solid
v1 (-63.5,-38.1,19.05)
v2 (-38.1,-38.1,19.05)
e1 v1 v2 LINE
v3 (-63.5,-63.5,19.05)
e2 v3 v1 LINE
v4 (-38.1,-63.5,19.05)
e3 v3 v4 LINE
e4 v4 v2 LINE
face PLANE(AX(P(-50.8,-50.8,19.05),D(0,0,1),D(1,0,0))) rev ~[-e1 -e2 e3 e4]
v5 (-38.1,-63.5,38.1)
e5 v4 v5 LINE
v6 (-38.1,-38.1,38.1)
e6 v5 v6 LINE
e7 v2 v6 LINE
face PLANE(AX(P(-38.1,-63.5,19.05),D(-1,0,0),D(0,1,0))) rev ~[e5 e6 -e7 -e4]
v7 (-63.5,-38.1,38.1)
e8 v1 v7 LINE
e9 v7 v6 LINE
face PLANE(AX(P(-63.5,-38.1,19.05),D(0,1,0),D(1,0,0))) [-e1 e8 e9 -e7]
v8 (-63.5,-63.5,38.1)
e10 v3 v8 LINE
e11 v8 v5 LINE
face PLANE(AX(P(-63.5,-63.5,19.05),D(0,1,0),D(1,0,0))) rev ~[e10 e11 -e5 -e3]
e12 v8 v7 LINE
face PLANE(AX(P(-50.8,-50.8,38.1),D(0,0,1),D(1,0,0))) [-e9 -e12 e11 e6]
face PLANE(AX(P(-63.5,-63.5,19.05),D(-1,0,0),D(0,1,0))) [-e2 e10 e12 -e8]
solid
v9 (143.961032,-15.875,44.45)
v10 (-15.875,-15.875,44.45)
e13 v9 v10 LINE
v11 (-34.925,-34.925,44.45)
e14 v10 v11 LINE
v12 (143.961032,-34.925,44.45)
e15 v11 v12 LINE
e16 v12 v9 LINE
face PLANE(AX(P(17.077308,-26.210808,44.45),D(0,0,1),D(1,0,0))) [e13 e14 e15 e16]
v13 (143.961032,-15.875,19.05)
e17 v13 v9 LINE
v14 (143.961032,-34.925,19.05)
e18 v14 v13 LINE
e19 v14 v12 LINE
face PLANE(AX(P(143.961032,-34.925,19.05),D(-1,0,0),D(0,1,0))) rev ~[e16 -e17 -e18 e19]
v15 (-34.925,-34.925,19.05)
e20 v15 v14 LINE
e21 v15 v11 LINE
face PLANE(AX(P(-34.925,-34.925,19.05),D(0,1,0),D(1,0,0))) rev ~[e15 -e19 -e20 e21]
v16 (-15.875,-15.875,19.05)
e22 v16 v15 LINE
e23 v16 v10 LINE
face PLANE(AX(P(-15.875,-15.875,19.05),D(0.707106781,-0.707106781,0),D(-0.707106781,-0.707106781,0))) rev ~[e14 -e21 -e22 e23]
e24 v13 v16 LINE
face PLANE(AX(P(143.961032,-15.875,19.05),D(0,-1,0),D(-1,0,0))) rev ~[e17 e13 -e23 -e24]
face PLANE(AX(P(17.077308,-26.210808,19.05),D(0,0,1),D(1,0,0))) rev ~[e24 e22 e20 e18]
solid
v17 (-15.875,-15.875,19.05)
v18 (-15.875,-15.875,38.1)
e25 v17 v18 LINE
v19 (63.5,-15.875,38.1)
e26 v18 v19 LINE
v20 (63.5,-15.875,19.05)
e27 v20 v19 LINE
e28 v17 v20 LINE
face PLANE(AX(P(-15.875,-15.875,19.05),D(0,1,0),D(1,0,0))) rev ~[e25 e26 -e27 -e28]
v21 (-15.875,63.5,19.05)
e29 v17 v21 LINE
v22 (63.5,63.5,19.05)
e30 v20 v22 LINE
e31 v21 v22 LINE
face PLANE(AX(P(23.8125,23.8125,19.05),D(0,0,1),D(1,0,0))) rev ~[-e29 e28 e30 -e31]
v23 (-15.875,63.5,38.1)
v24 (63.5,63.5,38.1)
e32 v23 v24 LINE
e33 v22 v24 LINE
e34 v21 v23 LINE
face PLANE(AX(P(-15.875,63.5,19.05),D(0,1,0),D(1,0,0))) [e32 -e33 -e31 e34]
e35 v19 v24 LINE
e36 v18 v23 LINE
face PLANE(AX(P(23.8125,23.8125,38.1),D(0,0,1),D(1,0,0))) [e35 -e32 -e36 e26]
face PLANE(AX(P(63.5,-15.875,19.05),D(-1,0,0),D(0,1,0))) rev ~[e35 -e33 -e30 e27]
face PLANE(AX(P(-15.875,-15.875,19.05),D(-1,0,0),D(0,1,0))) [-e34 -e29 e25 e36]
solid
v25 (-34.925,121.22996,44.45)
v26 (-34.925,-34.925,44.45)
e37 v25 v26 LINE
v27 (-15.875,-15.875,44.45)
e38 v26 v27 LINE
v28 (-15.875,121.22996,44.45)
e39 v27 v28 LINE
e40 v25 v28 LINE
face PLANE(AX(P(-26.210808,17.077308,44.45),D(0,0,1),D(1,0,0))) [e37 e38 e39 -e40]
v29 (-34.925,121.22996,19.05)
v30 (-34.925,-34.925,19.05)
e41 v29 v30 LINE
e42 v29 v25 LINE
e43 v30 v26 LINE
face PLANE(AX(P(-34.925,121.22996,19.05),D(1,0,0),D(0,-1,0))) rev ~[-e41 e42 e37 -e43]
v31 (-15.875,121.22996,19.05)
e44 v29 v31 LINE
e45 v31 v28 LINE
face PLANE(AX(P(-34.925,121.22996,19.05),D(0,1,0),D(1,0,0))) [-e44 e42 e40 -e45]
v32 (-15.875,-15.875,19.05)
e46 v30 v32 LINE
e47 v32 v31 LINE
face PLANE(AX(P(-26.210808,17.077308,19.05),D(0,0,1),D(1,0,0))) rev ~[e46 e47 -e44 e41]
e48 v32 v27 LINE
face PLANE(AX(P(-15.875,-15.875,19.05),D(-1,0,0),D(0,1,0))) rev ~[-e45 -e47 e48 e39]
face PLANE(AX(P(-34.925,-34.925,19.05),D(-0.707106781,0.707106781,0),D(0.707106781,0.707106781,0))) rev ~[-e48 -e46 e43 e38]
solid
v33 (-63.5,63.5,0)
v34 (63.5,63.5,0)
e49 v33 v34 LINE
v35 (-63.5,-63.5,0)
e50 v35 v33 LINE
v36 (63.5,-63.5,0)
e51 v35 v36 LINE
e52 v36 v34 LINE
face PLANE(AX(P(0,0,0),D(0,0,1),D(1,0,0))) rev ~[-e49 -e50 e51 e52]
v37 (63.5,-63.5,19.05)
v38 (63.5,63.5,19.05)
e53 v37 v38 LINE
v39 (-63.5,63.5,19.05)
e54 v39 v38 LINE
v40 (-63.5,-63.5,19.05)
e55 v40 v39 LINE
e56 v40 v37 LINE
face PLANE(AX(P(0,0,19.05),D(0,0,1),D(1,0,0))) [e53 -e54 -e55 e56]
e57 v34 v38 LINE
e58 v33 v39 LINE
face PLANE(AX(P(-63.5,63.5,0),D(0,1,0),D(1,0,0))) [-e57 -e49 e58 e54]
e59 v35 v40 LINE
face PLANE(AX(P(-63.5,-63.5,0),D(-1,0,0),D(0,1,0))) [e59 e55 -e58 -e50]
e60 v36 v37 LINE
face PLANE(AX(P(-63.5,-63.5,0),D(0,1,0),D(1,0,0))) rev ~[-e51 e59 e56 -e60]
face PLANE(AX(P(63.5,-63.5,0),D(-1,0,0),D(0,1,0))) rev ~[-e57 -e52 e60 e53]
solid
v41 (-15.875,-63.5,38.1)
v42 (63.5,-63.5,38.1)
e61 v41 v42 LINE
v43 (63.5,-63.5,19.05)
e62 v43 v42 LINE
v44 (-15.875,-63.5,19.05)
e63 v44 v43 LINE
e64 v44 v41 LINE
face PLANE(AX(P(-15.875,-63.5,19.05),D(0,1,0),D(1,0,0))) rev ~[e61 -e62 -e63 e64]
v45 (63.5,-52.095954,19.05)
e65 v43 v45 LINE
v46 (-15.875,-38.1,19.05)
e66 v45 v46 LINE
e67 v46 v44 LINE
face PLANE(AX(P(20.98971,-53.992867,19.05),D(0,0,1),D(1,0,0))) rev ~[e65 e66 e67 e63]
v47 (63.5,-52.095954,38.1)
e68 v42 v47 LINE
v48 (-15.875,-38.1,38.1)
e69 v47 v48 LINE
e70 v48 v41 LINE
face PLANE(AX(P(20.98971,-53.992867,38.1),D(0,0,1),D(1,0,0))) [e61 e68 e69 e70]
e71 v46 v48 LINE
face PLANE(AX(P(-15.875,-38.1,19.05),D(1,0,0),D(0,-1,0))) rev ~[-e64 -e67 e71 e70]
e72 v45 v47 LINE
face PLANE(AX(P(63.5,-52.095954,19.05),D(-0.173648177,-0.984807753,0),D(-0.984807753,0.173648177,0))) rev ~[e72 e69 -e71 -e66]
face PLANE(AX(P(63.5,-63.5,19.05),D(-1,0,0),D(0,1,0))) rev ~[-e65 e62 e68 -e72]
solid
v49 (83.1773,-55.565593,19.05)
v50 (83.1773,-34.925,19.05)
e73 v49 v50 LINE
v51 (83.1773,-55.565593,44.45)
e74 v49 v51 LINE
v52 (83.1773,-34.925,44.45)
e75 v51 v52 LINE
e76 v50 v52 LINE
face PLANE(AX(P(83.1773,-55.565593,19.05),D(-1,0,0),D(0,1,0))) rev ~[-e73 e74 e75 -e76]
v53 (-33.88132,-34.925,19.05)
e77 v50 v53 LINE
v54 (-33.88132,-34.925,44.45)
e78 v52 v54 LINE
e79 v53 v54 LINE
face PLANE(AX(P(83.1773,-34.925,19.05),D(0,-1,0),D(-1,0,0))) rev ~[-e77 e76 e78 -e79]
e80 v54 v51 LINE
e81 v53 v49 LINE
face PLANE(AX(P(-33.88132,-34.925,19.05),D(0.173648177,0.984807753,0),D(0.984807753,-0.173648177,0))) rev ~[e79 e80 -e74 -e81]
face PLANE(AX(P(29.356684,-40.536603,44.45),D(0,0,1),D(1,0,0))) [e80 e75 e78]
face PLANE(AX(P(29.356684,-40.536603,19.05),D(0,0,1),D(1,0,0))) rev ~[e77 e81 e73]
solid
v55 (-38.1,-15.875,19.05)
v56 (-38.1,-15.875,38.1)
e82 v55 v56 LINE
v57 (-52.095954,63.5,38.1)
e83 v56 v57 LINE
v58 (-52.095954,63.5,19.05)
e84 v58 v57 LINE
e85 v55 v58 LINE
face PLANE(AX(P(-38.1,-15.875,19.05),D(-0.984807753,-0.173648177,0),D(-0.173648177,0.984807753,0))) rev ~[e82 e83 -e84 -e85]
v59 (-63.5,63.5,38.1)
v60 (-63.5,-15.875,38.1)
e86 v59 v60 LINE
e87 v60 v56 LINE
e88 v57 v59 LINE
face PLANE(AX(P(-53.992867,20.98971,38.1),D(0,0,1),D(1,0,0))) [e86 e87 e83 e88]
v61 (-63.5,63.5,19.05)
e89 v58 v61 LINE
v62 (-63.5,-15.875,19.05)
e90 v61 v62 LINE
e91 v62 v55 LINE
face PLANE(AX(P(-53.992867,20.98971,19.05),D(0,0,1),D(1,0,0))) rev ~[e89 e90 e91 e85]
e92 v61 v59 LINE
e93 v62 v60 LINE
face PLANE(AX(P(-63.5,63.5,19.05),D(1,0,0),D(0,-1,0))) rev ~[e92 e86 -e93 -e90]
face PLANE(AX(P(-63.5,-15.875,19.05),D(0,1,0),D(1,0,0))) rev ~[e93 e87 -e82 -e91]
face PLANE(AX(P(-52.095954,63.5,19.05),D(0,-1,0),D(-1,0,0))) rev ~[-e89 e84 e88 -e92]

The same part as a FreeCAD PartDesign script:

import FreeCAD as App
import Part
import Sketcher
Q = App.Units.Quantity


def add_polygon(sketch, points):
    """Adds a closed chain of lines whose ends are joined by coincident constraints."""
    first, n = sketch.GeometryCount, len(points)
    for a, b in zip(points, points[1:] + points[:1]):
        sketch.addGeometry(Part.LineSegment(App.Vector(*a, 0), App.Vector(*b, 0)), False)
    for i in range(n):
        sketch.addConstraint(Sketcher.Constraint("Coincident", first + i, 2, first + (i + 1) % n, 1))

doc = App.newDocument("Part")
body = doc.addObject("PartDesign::Body", "Body")

# Sketch on XY plane
sketch1 = body.newObject("Sketcher::SketchObject", "Sketch")
sketch1.AttachmentSupport = (doc.getObject("XY_Plane"), [""])
sketch1.MapMode = "FlatFace"
add_polygon(sketch1, [(-64, 64), (-64, -64), (64, -64), (64, 64)])  # lines 0-3
sketch1.addConstraint(Sketcher.Constraint("Vertical", 0))
sketch1.addConstraint(Sketcher.Constraint("Horizontal", 1))
sketch1.addConstraint(Sketcher.Constraint("Vertical", 2))
sketch1.addConstraint(Sketcher.Constraint("Horizontal", 3))
sketch1.addConstraint(Sketcher.Constraint("Symmetric", 0, 2, 2, 2, -1, 1))
sketch1.addConstraint(Sketcher.Constraint("Equal", 3, 0))
sketch1.addConstraint(Sketcher.Constraint("DistanceX", 1, 1, 1, 2, Q("5 in")))
pad1 = body.newObject("PartDesign::Pad", "Pad")
pad1.Profile = sketch1
pad1.Length = Q("0.75 in")
body2 = doc.addObject("PartDesign::Body", "Body001")
body2.AllowCompound = True

# Sketch on XY plane
sketch2 = body2.newObject("Sketcher::SketchObject", "Sketch001")
sketch2.AttachmentSupport = (doc.getObject("XY_Plane001"), [""])
sketch2.MapMode = "FlatFace"
sketch2.AttachmentOffset = App.Placement(App.Vector(0, 0, 0.75 * 25.4), App.Rotation())
add_polygon(sketch2, [(-64, 64), (-64, -16), (-38, -16), (-52, 64)])  # lines 0-3
add_polygon(sketch2, [(-64, -38), (-64, -64), (-38, -64), (-38, -38)])  # lines 4-7
add_polygon(sketch2, [(-16, -38), (-16, -64), (64, -64), (64, -52)])  # lines 8-11
add_polygon(sketch2, [(-16, 64), (-16, -16), (64, -16), (64, 64)])  # lines 12-15
sketch2.addConstraint(Sketcher.Constraint("Vertical", 0))
sketch2.addConstraint(Sketcher.Constraint("Horizontal", 1))
sketch2.addConstraint(Sketcher.Constraint("Horizontal", 3))
sketch2.addConstraint(Sketcher.Constraint("Vertical", 4))
sketch2.addConstraint(Sketcher.Constraint("Horizontal", 5))
sketch2.addConstraint(Sketcher.Constraint("Vertical", 6))
sketch2.addConstraint(Sketcher.Constraint("Horizontal", 7))
sketch2.addConstraint(Sketcher.Constraint("Vertical", 8))
sketch2.addConstraint(Sketcher.Constraint("Horizontal", 9))
sketch2.addConstraint(Sketcher.Constraint("Vertical", 10))
sketch2.addConstraint(Sketcher.Constraint("Vertical", 12))
sketch2.addConstraint(Sketcher.Constraint("Horizontal", 13))
sketch2.addConstraint(Sketcher.Constraint("Vertical", 14))
sketch2.addConstraint(Sketcher.Constraint("Horizontal", 15))
sketch2.addConstraint(Sketcher.Constraint("Symmetric", 3, 2, 9, 2, -1, 1))
sketch2.addConstraint(Sketcher.Constraint("Symmetric", 4, 2, 14, 2, -1, 1))
sketch2.addConstraint(Sketcher.Constraint("Symmetric", 4, 2, 9, 2, -2))
sketch2.addConstraint(Sketcher.Constraint("Horizontal", 7, 2, 11, 2))
sketch2.addConstraint(Sketcher.Constraint("Horizontal", 1, 2, 12, 2))
sketch2.addConstraint(Sketcher.Constraint("Vertical", 1, 2, 5, 2))
sketch2.addConstraint(Sketcher.Constraint("Vertical", 11, 2, 12, 2))
sketch2.addConstraint(Sketcher.Constraint("Equal", 15, 0))
sketch2.addConstraint(Sketcher.Constraint("Equal", 7, 4))
sketch2.addConstraint(Sketcher.Constraint("Equal", 3, 10))
sketch2.addConstraint(Sketcher.Constraint("DistanceX", 1, 1, 1, 2, Q("1 in")))
sketch2.addConstraint(Sketcher.Constraint("Angle", 2, Q("100 deg")))
sketch2.addConstraint(Sketcher.Constraint("DistanceY", 4, 2, 3, 2, Q("5 in")))
sketch2.addConstraint(Sketcher.Constraint("DistanceX", 5, 2, 9, 2, Q("4 in")))
sketch2.addConstraint(Sketcher.Constraint("DistanceX", 9, 1, 9, 2, Q("3.125 in")))
pad2 = body2.newObject("PartDesign::Pad", "Pad001")
pad2.Profile = sketch2
pad2.Length = Q("0.75 in")
body3 = doc.addObject("PartDesign::Body", "Body002")

# Sketch on XY plane
sketch3 = body3.newObject("Sketcher::SketchObject", "Sketch002")
sketch3.AttachmentSupport = (doc.getObject("XY_Plane002"), [""])
sketch3.MapMode = "FlatFace"
sketch3.AttachmentOffset = App.Placement(App.Vector(0, 0, 0.75 * 25.4), App.Rotation())
add_polygon(sketch3, [(83, -56), (83, -35), (-34, -35)])  # lines 0-2
sketch3.addConstraint(Sketcher.Constraint("Vertical", 0))
sketch3.addConstraint(Sketcher.Constraint("Horizontal", 1))
sketch3.addConstraint(Sketcher.Constraint("Angle", 2, Q("-10 deg")))
sketch3.addConstraint(Sketcher.Constraint("DistanceY", 0, 2, -1, 1, Q("1.375 in")))
sketch3.addConstraint(Sketcher.Constraint("DistanceX", 1, 2, 1, 1, Q("117.05862 mm")))
sketch3.addConstraint(Sketcher.Constraint("DistanceX", -1, 1, 0, 2, Q("83.1773 mm")))
pad3 = body3.newObject("PartDesign::Pad", "Pad002")
pad3.Profile = sketch3
pad3.Length = Q("1 in")
body4 = doc.addObject("PartDesign::Body", "Body003")

# Sketch on XY plane
sketch4 = body4.newObject("Sketcher::SketchObject", "Sketch003")
sketch4.AttachmentSupport = (doc.getObject("XY_Plane003"), [""])
sketch4.MapMode = "FlatFace"
sketch4.AttachmentOffset = App.Placement(App.Vector(0, 0, 0.75 * 25.4), App.Rotation())
add_polygon(sketch4, [(-35, -35), (-16, -16), (-16, 121), (-35, 121)])  # lines 0-3
sketch4.addConstraint(Sketcher.Constraint("Vertical", 1))
sketch4.addConstraint(Sketcher.Constraint("Horizontal", 2))
sketch4.addConstraint(Sketcher.Constraint("Vertical", 3))
sketch4.addConstraint(Sketcher.Constraint("Angle", 0, Q("45 deg")))
sketch4.addConstraint(Sketcher.Constraint("DistanceX", 2, 2, 2, 1, Q("0.75 in")))
sketch4.addConstraint(Sketcher.Constraint("DistanceX", 0, 2, -1, 1, Q("0.625 in")))
sketch4.addConstraint(Sketcher.Constraint("DistanceY", 0, 2, -1, 1, Q("0.625 in")))
sketch4.addConstraint(Sketcher.Constraint("DistanceY", 1, 1, 1, 2, Q("137.10496 mm")))
pad4 = body4.newObject("PartDesign::Pad", "Pad003")
pad4.Profile = sketch4
pad4.Length = Q("1 in")
body5 = doc.addObject("PartDesign::Body", "Body004")

# Sketch on XY plane
sketch5 = body5.newObject("Sketcher::SketchObject", "Sketch004")
sketch5.AttachmentSupport = (doc.getObject("XY_Plane004"), [""])
sketch5.MapMode = "FlatFace"
sketch5.AttachmentOffset = App.Placement(App.Vector(0, 0, 0.75 * 25.4), App.Rotation())
add_polygon(sketch5, [(-16, -16), (-35, -35), (144, -35), (144, -16)])  # lines 0-3
sketch5.addConstraint(Sketcher.Constraint("Horizontal", 1))
sketch5.addConstraint(Sketcher.Constraint("Vertical", 2))
sketch5.addConstraint(Sketcher.Constraint("Horizontal", 3))
sketch5.addConstraint(Sketcher.Constraint("Angle", 0, Q("-135 deg")))
sketch5.addConstraint(Sketcher.Constraint("DistanceY", 2, 1, 2, 2, Q("0.75 in")))
sketch5.addConstraint(Sketcher.Constraint("DistanceX", 0, 2, -1, 1, Q("1.375 in")))
sketch5.addConstraint(Sketcher.Constraint("DistanceY", 0, 2, -1, 1, Q("1.375 in")))
sketch5.addConstraint(Sketcher.Constraint("DistanceX", 1, 1, 1, 2, Q("178.886032 mm")))
pad5 = body5.newObject("PartDesign::Pad", "Pad004")
pad5.Profile = sketch5
pad5.Length = Q("1 in")

doc.recompute()
